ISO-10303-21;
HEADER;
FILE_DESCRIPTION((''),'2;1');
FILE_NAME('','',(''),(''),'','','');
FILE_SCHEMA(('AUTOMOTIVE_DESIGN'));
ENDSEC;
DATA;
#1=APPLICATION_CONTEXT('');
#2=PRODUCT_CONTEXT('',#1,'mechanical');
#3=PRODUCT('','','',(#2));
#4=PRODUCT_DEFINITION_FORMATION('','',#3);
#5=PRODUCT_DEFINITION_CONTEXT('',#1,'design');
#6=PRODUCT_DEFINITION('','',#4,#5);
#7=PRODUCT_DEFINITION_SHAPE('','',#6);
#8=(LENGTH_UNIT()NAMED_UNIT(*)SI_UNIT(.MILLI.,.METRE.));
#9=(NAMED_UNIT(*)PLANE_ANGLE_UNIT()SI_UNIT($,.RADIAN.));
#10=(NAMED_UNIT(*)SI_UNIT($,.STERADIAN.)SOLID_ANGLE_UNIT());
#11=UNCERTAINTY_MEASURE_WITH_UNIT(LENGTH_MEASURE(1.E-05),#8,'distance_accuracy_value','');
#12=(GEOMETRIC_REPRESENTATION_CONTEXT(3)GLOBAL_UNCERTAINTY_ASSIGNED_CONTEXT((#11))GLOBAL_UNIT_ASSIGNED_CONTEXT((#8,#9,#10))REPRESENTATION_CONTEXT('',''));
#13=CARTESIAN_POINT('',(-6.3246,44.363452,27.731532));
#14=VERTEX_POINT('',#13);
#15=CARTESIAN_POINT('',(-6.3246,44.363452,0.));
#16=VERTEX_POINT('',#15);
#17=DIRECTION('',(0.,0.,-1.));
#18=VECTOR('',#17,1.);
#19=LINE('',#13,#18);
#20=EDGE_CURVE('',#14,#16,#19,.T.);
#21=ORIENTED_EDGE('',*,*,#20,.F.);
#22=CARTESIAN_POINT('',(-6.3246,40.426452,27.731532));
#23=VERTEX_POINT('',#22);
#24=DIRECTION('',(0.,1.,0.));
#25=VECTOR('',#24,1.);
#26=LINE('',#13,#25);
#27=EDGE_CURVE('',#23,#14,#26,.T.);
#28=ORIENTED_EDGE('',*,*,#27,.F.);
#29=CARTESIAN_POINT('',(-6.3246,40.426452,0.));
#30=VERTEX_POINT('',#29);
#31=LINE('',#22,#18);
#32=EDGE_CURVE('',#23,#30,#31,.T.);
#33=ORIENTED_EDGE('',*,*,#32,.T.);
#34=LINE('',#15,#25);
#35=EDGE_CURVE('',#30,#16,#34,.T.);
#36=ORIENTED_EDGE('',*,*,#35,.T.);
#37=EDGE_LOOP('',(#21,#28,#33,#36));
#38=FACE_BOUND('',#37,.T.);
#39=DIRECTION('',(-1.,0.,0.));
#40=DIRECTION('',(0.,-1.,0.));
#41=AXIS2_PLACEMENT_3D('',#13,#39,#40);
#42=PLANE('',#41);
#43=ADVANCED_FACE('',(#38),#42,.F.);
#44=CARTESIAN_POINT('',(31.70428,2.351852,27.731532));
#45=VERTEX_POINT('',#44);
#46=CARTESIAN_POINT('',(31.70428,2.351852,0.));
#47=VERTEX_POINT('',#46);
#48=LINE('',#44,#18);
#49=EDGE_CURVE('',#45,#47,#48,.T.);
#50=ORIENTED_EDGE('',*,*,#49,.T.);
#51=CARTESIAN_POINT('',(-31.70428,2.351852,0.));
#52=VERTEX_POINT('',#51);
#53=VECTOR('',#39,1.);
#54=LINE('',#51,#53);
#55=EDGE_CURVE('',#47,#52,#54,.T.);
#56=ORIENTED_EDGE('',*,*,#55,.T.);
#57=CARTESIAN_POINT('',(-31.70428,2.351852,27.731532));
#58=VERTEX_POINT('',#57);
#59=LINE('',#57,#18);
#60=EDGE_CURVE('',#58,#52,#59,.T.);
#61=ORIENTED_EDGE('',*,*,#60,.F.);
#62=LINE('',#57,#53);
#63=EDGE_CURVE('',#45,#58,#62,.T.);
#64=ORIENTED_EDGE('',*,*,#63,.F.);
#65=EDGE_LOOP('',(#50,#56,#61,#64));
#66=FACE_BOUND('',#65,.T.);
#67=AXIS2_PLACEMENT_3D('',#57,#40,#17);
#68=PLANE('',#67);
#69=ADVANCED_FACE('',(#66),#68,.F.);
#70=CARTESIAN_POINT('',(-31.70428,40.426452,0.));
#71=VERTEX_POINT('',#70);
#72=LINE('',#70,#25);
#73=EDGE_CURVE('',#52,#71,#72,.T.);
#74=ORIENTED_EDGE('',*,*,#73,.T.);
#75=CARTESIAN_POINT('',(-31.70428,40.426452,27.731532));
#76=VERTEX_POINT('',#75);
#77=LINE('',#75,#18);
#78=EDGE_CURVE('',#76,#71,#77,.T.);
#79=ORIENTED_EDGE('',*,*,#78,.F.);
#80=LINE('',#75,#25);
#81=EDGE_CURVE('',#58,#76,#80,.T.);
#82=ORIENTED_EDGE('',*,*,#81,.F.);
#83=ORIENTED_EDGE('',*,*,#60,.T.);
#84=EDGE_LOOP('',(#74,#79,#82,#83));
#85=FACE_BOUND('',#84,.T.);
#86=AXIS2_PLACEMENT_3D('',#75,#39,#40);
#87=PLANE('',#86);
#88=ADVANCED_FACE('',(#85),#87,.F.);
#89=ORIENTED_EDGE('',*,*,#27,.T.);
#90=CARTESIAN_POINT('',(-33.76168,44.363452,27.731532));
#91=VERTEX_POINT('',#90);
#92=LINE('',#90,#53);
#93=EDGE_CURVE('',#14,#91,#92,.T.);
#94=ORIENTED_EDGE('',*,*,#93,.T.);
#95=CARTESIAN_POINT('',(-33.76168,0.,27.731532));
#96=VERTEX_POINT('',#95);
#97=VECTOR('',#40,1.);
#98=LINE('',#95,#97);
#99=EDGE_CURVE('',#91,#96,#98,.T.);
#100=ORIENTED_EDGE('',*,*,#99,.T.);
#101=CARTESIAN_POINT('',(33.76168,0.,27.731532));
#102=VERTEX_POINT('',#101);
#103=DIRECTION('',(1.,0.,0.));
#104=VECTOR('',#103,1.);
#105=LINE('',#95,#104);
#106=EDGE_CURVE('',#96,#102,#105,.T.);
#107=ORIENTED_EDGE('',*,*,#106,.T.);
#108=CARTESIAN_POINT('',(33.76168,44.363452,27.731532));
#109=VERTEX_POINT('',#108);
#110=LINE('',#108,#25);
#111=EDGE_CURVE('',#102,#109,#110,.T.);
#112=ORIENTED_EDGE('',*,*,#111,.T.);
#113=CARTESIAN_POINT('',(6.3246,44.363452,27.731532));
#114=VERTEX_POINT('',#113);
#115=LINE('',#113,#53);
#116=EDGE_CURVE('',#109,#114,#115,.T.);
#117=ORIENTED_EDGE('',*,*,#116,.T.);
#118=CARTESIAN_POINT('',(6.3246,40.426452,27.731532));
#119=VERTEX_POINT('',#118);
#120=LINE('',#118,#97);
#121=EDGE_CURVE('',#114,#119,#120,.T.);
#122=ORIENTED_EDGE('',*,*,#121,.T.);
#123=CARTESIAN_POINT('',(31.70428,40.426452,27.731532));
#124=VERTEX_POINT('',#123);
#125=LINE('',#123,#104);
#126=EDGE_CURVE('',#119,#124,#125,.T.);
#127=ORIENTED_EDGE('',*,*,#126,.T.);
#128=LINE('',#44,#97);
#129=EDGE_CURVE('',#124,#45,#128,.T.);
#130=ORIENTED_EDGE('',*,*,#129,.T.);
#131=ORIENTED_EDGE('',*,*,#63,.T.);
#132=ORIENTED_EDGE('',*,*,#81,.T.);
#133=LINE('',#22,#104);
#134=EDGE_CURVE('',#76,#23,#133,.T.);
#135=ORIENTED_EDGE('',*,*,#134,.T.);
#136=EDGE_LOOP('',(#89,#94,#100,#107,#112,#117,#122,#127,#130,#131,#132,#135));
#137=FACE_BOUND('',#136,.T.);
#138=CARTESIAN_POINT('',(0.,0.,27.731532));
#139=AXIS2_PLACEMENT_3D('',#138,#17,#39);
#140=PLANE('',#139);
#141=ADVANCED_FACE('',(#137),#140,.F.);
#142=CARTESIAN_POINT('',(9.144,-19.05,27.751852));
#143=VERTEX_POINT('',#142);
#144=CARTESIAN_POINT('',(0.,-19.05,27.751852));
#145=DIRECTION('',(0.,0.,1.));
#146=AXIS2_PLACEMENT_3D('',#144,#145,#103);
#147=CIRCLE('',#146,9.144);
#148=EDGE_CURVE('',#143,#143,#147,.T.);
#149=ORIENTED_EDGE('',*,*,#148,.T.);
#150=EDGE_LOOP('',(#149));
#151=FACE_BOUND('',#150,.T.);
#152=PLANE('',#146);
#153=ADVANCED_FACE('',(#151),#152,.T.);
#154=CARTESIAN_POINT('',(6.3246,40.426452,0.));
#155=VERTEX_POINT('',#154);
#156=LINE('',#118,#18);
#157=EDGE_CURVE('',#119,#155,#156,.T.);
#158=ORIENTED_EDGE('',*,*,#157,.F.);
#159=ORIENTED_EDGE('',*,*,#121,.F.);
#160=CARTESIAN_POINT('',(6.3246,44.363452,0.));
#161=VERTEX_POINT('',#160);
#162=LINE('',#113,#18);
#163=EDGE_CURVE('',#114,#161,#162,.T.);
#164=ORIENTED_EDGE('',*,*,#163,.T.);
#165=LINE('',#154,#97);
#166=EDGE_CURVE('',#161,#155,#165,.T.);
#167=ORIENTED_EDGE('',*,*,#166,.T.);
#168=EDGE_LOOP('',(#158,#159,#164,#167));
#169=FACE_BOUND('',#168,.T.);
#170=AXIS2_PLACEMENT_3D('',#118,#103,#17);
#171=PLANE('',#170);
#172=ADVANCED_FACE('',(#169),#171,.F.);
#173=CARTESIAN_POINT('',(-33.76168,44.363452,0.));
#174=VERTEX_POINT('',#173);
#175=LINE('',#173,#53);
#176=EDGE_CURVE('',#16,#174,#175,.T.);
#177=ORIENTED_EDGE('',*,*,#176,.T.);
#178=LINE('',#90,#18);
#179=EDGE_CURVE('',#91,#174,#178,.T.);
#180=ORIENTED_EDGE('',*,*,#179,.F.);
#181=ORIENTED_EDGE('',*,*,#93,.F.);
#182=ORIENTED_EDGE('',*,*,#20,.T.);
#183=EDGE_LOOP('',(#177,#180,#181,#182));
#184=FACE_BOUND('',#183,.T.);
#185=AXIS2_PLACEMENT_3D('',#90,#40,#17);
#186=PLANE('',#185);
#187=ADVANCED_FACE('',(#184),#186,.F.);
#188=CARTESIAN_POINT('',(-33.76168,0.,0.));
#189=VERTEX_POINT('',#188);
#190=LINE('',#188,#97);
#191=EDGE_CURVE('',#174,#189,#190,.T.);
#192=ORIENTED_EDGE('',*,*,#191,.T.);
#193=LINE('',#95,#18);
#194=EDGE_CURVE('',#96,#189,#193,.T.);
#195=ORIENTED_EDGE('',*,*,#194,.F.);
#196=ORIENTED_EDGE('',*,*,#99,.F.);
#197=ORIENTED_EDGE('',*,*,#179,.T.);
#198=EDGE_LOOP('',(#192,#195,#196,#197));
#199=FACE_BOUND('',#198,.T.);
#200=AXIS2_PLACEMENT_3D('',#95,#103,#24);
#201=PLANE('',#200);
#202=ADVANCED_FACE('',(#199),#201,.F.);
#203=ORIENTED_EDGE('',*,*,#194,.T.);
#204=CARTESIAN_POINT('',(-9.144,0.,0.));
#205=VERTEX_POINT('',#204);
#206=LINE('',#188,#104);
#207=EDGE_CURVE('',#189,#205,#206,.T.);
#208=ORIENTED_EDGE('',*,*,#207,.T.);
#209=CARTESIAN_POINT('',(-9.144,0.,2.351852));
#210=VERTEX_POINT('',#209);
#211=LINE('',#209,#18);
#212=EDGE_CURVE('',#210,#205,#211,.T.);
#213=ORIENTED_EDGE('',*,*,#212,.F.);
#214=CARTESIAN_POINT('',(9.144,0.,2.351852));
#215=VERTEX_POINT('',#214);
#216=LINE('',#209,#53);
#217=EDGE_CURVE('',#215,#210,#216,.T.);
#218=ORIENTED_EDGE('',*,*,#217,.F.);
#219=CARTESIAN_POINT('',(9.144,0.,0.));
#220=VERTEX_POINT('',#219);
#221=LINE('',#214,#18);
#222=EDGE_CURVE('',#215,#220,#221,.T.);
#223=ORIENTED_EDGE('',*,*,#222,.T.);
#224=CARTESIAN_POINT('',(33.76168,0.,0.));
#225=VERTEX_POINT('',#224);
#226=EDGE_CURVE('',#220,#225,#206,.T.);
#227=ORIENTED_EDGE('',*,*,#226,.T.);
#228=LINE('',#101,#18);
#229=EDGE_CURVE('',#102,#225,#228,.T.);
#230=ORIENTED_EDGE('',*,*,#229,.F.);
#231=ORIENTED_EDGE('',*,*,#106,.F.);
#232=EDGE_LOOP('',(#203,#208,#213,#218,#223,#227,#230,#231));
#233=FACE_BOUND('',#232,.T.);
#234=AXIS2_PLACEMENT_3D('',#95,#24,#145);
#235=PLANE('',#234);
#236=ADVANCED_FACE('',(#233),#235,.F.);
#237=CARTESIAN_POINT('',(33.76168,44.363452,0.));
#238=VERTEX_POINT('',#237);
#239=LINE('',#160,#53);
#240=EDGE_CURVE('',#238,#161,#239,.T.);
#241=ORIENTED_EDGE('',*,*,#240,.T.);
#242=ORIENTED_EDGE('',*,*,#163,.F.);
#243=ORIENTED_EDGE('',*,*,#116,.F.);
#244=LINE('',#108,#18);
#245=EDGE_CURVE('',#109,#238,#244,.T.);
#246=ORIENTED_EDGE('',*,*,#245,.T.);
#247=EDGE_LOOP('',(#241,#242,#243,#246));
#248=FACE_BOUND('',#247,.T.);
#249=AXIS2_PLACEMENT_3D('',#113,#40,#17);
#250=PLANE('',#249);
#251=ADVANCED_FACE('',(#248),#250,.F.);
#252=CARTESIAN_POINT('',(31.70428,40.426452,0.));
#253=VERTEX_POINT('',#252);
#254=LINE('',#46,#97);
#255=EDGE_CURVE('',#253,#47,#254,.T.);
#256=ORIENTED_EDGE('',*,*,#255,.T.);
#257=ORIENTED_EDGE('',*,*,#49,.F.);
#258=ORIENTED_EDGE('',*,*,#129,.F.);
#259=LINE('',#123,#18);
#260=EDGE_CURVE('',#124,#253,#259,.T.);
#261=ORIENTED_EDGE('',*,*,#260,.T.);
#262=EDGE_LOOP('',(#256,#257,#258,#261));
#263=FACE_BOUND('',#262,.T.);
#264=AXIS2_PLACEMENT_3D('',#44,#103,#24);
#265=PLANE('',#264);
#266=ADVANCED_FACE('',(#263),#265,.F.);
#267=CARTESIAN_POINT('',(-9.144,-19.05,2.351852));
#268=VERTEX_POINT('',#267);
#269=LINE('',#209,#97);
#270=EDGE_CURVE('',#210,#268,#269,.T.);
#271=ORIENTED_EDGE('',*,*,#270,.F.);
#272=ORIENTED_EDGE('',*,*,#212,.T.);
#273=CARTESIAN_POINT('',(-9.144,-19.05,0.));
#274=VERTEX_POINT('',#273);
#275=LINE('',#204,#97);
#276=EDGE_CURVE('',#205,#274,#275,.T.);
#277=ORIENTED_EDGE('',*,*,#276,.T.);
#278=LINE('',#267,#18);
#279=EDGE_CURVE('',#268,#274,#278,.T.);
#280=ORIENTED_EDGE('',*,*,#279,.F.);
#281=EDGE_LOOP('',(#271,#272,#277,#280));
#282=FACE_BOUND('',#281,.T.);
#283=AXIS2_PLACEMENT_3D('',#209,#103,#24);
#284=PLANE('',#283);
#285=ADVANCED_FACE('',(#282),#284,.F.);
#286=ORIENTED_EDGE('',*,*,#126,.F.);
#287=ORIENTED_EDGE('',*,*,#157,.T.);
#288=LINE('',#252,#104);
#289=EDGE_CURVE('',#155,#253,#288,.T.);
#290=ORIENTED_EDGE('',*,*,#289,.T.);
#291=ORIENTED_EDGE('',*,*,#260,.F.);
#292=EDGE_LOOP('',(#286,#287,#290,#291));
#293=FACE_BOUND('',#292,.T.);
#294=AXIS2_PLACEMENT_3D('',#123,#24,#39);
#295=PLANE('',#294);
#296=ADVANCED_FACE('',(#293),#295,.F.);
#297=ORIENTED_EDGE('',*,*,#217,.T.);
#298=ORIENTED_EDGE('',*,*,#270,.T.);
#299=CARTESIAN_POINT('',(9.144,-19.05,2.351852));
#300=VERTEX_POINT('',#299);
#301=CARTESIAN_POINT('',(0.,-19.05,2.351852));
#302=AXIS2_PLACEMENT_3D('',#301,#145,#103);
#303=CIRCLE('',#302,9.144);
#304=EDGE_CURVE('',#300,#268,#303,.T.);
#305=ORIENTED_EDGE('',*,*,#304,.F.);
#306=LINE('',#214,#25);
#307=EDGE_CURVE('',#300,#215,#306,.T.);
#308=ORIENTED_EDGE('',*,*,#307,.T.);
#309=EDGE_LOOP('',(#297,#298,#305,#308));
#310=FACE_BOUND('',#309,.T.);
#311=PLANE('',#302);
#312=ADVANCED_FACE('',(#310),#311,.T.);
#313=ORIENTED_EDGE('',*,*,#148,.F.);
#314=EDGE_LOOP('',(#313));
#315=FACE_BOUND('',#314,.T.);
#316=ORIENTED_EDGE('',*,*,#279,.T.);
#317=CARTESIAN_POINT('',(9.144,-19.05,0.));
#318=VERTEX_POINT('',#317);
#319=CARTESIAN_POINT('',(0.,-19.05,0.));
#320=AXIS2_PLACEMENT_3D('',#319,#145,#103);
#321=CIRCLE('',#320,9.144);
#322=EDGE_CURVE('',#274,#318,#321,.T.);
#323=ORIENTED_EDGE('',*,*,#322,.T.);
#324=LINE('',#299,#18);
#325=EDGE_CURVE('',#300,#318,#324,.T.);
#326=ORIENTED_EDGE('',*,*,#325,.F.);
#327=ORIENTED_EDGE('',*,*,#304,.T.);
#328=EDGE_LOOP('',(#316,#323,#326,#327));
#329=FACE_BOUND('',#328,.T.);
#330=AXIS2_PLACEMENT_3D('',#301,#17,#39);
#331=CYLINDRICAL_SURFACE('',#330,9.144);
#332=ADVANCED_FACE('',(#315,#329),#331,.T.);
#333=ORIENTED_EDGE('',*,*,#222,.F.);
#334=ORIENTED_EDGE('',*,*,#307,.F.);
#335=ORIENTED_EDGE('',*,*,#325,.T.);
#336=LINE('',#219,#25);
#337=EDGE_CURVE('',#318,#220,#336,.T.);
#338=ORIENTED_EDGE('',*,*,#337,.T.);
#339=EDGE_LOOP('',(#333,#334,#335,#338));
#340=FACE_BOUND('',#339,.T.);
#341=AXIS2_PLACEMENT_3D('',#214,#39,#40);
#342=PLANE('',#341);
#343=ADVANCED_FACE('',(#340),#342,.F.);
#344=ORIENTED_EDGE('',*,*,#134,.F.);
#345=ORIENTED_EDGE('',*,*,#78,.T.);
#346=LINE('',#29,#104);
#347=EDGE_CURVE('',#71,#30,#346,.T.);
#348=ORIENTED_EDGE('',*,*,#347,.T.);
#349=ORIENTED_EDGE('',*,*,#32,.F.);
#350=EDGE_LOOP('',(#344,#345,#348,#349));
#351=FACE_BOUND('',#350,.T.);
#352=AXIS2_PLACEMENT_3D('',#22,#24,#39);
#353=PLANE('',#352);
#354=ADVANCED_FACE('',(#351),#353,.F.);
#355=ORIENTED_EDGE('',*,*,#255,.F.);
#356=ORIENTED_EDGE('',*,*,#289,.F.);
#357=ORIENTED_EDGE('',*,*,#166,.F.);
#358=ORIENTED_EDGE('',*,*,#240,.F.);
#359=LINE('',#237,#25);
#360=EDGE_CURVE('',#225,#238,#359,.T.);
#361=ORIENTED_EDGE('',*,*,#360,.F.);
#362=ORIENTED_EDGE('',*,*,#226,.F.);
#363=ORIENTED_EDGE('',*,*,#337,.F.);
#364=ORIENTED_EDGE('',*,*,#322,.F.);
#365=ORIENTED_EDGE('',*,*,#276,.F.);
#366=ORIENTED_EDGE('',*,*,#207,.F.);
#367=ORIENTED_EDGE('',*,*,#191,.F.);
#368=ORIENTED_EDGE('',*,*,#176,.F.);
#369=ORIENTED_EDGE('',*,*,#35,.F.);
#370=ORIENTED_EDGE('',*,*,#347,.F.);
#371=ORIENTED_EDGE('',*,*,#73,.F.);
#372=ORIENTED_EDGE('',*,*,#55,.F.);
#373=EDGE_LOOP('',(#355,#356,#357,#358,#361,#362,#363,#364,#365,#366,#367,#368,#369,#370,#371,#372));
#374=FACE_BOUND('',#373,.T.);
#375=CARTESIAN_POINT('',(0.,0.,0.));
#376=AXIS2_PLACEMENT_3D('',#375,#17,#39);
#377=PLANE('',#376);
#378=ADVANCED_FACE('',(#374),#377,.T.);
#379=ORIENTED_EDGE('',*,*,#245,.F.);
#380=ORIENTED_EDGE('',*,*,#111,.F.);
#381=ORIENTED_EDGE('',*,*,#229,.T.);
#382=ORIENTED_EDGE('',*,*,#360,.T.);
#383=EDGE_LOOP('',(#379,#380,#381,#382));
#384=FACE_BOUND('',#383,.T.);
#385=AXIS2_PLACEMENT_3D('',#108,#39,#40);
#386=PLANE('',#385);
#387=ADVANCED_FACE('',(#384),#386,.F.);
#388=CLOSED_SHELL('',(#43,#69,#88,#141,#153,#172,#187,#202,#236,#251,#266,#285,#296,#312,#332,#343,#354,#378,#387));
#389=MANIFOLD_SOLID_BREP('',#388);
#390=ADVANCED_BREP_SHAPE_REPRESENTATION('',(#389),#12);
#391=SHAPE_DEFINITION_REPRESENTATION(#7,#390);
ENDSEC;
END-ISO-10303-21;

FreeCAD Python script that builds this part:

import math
import FreeCAD as App
import Part
import Sketcher
Q = App.Units.Quantity

doc = App.newDocument("Part")
body = doc.addObject("PartDesign::Body", "Body")

# Sketch on XY plane
sketch1 = body.newObject("Sketcher::SketchObject", "Sketch")
sketch1.AttachmentSupport = (doc.getObject("XY_Plane"), [""])
sketch1.MapMode = "FlatFace"
sketch1.addGeometry(Part.LineSegment(App.Vector(-33.8, 0, 0), App.Vector(33.8, 0, 0)), False)
sketch1.addGeometry(Part.LineSegment(App.Vector(33.8, 0, 0), App.Vector(33.8, 44.4, 0)), False)
sketch1.addGeometry(Part.LineSegment(App.Vector(33.8, 44.4, 0), App.Vector(6.3, 44.4, 0)), False)
sketch1.addGeometry(Part.LineSegment(App.Vector(6.3, 44.4, 0), App.Vector(6.3, 40.4, 0)), False)
sketch1.addGeometry(Part.LineSegment(App.Vector(6.3, 40.4, 0), App.Vector(31.7, 40.4, 0)), False)
sketch1.addGeometry(Part.LineSegment(App.Vector(31.7, 40.4, 0), App.Vector(31.7, 2.4, 0)), False)
sketch1.addGeometry(Part.LineSegment(App.Vector(31.7, 2.4, 0), App.Vector(-31.7, 2.4, 0)), False)
sketch1.addGeometry(Part.LineSegment(App.Vector(-31.7, 2.4, 0), App.Vector(-31.7, 40.4, 0)), False)
sketch1.addGeometry(Part.LineSegment(App.Vector(-31.7, 40.4, 0), App.Vector(-6.3, 40.4, 0)), False)
sketch1.addGeometry(Part.LineSegment(App.Vector(-6.3, 40.4, 0), App.Vector(-6.3, 44.4, 0)), False)
sketch1.addGeometry(Part.LineSegment(App.Vector(-6.3, 44.4, 0), App.Vector(-33.8, 44.4, 0)), False)
sketch1.addGeometry(Part.LineSegment(App.Vector(-33.8, 44.4, 0), App.Vector(-33.8, 0, 0)), False)
sketch1.addConstraint(Sketcher.Constraint("Coincident", 0, 2, 1, 1))
sketch1.addConstraint(Sketcher.Constraint("Coincident", 1, 2, 2, 1))
sketch1.addConstraint(Sketcher.Constraint("Coincident", 2, 2, 3, 1))
sketch1.addConstraint(Sketcher.Constraint("Coincident", 3, 2, 4, 1))
sketch1.addConstraint(Sketcher.Constraint("Coincident", 4, 2, 5, 1))
sketch1.addConstraint(Sketcher.Constraint("Coincident", 5, 2, 6, 1))
sketch1.addConstraint(Sketcher.Constraint("Coincident", 6, 2, 7, 1))
sketch1.addConstraint(Sketcher.Constraint("Coincident", 7, 2, 8, 1))
sketch1.addConstraint(Sketcher.Constraint("Coincident", 8, 2, 9, 1))
sketch1.addConstraint(Sketcher.Constraint("Coincident", 9, 2, 10, 1))
sketch1.addConstraint(Sketcher.Constraint("Coincident", 10, 2, 11, 1))
sketch1.addConstraint(Sketcher.Constraint("Coincident", 11, 2, 0, 1))
sketch1.addConstraint(Sketcher.Constraint("Horizontal", 0))
sketch1.addConstraint(Sketcher.Constraint("Vertical", 1))
sketch1.addConstraint(Sketcher.Constraint("Horizontal", 2))
sketch1.addConstraint(Sketcher.Constraint("Vertical", 3))
sketch1.addConstraint(Sketcher.Constraint("Horizontal", 4))
sketch1.addConstraint(Sketcher.Constraint("Vertical", 5))
sketch1.addConstraint(Sketcher.Constraint("Horizontal", 6))
sketch1.addConstraint(Sketcher.Constraint("Vertical", 7))
sketch1.addConstraint(Sketcher.Constraint("Horizontal", 8))
sketch1.addConstraint(Sketcher.Constraint("Vertical", 9))
sketch1.addConstraint(Sketcher.Constraint("Horizontal", 10))
sketch1.addConstraint(Sketcher.Constraint("Vertical", 11))
sketch1.addConstraint(Sketcher.Constraint("Symmetric", 0, 2, 11, 2, -1, 1))
sketch1.addConstraint(Sketcher.Constraint("Symmetric", 4, 2, 7, 2, -2))
sketch1.addConstraint(Sketcher.Constraint("Symmetric", 2, 2, 9, 2, -2))
sketch1.addConstraint(Sketcher.Constraint("DistanceY", 3, 2, 3, 1, Q("0.155 in")))
sketch1.addConstraint(Sketcher.Constraint("DistanceY", 5, 2, 5, 1, Q("1.499 in")))
sketch1.addConstraint(Sketcher.Constraint("DistanceX", 0, 1, 0, 2, Q("2.6584 in")))
sketch1.addConstraint(Sketcher.Constraint("DistanceX", 2, 2, 2, 1, Q("1.0802 in")))
sketch1.addConstraint(Sketcher.Constraint("DistanceX", 4, 1, 4, 2, Q("0.9992 in")))
sketch1.addConstraint(Sketcher.Constraint("DistanceY", 1, 1, 1, 2, Q("44.363452 mm")))
pad1 = body.newObject("PartDesign::Pad", "Pad")
pad1.Profile = sketch1
pad1.Length = 27.731532

# Sketch on XY plane
sketch2 = body.newObject("Sketcher::SketchObject", "Sketch001")
sketch2.AttachmentSupport = (doc.getObject("XY_Plane"), [""])
sketch2.MapMode = "FlatFace"
sketch2.addGeometry(Part.LineSegment(App.Vector(9, 0, 0), App.Vector(-9, 0, 0)), False)
sketch2.addGeometry(Part.LineSegment(App.Vector(-9, 0, 0), App.Vector(-9, -19, 0)), False)
sketch2.addGeometry(Part.ArcOfCircle(Part.Circle(App.Vector(0, -19, 0), App.Vector(0, 0, 1), 9), math.radians(180), math.radians(360)), False)
sketch2.addGeometry(Part.LineSegment(App.Vector(9, -19, 0), App.Vector(9, 0, 0)), False)
sketch2.addConstraint(Sketcher.Constraint("Coincident", 0, 2, 1, 1))
sketch2.addConstraint(Sketcher.Constraint("Tangent", 1, 2, 2, 1))
sketch2.addConstraint(Sketcher.Constraint("Tangent", 2, 2, 3, 1))
sketch2.addConstraint(Sketcher.Constraint("Coincident", 3, 2, 0, 1))
sketch2.addConstraint(Sketcher.Constraint("Horizontal", 0))
sketch2.addConstraint(Sketcher.Constraint("Vertical", 1))
sketch2.addConstraint(Sketcher.Constraint("Vertical", 3))
sketch2.addConstraint(Sketcher.Constraint("Symmetric", 0, 2, 3, 2, -1, 1))
sketch2.addConstraint(Sketcher.Constraint("Radius", 2, Q("0.36 in")))
sketch2.addConstraint(Sketcher.Constraint("DistanceY", 1, 2, 1, 1, Q("0.75 in")))
pad2 = body.newObject("PartDesign::Pad", "Pad001")
pad2.Profile = sketch2
pad2.Length = 2.351852

# Sketch on XY plane
sketch3 = body.newObject("Sketcher::SketchObject", "Sketch002")
sketch3.AttachmentSupport = (doc.getObject("XY_Plane"), [""])
sketch3.MapMode = "FlatFace"
sketch3.AttachmentOffset = App.Placement(App.Vector(0, 0, 2.351852), App.Rotation())
sketch3.addGeometry(Part.Circle(App.Vector(0, -19, 0), App.Vector(0, 0, 1), 9), False)
sketch3.addConstraint(Sketcher.Constraint("PointOnObject", 0, 3, -2))
sketch3.addConstraint(Sketcher.Constraint("Diameter", 0, Q("0.72 in")))
sketch3.addConstraint(Sketcher.Constraint("DistanceY", 0, 3, -1, 1, Q("0.75 in")))
pad3 = body.newObject("PartDesign::Pad", "Pad002")
pad3.Profile = sketch3
pad3.Length = Q("1 in")

doc.recompute()
